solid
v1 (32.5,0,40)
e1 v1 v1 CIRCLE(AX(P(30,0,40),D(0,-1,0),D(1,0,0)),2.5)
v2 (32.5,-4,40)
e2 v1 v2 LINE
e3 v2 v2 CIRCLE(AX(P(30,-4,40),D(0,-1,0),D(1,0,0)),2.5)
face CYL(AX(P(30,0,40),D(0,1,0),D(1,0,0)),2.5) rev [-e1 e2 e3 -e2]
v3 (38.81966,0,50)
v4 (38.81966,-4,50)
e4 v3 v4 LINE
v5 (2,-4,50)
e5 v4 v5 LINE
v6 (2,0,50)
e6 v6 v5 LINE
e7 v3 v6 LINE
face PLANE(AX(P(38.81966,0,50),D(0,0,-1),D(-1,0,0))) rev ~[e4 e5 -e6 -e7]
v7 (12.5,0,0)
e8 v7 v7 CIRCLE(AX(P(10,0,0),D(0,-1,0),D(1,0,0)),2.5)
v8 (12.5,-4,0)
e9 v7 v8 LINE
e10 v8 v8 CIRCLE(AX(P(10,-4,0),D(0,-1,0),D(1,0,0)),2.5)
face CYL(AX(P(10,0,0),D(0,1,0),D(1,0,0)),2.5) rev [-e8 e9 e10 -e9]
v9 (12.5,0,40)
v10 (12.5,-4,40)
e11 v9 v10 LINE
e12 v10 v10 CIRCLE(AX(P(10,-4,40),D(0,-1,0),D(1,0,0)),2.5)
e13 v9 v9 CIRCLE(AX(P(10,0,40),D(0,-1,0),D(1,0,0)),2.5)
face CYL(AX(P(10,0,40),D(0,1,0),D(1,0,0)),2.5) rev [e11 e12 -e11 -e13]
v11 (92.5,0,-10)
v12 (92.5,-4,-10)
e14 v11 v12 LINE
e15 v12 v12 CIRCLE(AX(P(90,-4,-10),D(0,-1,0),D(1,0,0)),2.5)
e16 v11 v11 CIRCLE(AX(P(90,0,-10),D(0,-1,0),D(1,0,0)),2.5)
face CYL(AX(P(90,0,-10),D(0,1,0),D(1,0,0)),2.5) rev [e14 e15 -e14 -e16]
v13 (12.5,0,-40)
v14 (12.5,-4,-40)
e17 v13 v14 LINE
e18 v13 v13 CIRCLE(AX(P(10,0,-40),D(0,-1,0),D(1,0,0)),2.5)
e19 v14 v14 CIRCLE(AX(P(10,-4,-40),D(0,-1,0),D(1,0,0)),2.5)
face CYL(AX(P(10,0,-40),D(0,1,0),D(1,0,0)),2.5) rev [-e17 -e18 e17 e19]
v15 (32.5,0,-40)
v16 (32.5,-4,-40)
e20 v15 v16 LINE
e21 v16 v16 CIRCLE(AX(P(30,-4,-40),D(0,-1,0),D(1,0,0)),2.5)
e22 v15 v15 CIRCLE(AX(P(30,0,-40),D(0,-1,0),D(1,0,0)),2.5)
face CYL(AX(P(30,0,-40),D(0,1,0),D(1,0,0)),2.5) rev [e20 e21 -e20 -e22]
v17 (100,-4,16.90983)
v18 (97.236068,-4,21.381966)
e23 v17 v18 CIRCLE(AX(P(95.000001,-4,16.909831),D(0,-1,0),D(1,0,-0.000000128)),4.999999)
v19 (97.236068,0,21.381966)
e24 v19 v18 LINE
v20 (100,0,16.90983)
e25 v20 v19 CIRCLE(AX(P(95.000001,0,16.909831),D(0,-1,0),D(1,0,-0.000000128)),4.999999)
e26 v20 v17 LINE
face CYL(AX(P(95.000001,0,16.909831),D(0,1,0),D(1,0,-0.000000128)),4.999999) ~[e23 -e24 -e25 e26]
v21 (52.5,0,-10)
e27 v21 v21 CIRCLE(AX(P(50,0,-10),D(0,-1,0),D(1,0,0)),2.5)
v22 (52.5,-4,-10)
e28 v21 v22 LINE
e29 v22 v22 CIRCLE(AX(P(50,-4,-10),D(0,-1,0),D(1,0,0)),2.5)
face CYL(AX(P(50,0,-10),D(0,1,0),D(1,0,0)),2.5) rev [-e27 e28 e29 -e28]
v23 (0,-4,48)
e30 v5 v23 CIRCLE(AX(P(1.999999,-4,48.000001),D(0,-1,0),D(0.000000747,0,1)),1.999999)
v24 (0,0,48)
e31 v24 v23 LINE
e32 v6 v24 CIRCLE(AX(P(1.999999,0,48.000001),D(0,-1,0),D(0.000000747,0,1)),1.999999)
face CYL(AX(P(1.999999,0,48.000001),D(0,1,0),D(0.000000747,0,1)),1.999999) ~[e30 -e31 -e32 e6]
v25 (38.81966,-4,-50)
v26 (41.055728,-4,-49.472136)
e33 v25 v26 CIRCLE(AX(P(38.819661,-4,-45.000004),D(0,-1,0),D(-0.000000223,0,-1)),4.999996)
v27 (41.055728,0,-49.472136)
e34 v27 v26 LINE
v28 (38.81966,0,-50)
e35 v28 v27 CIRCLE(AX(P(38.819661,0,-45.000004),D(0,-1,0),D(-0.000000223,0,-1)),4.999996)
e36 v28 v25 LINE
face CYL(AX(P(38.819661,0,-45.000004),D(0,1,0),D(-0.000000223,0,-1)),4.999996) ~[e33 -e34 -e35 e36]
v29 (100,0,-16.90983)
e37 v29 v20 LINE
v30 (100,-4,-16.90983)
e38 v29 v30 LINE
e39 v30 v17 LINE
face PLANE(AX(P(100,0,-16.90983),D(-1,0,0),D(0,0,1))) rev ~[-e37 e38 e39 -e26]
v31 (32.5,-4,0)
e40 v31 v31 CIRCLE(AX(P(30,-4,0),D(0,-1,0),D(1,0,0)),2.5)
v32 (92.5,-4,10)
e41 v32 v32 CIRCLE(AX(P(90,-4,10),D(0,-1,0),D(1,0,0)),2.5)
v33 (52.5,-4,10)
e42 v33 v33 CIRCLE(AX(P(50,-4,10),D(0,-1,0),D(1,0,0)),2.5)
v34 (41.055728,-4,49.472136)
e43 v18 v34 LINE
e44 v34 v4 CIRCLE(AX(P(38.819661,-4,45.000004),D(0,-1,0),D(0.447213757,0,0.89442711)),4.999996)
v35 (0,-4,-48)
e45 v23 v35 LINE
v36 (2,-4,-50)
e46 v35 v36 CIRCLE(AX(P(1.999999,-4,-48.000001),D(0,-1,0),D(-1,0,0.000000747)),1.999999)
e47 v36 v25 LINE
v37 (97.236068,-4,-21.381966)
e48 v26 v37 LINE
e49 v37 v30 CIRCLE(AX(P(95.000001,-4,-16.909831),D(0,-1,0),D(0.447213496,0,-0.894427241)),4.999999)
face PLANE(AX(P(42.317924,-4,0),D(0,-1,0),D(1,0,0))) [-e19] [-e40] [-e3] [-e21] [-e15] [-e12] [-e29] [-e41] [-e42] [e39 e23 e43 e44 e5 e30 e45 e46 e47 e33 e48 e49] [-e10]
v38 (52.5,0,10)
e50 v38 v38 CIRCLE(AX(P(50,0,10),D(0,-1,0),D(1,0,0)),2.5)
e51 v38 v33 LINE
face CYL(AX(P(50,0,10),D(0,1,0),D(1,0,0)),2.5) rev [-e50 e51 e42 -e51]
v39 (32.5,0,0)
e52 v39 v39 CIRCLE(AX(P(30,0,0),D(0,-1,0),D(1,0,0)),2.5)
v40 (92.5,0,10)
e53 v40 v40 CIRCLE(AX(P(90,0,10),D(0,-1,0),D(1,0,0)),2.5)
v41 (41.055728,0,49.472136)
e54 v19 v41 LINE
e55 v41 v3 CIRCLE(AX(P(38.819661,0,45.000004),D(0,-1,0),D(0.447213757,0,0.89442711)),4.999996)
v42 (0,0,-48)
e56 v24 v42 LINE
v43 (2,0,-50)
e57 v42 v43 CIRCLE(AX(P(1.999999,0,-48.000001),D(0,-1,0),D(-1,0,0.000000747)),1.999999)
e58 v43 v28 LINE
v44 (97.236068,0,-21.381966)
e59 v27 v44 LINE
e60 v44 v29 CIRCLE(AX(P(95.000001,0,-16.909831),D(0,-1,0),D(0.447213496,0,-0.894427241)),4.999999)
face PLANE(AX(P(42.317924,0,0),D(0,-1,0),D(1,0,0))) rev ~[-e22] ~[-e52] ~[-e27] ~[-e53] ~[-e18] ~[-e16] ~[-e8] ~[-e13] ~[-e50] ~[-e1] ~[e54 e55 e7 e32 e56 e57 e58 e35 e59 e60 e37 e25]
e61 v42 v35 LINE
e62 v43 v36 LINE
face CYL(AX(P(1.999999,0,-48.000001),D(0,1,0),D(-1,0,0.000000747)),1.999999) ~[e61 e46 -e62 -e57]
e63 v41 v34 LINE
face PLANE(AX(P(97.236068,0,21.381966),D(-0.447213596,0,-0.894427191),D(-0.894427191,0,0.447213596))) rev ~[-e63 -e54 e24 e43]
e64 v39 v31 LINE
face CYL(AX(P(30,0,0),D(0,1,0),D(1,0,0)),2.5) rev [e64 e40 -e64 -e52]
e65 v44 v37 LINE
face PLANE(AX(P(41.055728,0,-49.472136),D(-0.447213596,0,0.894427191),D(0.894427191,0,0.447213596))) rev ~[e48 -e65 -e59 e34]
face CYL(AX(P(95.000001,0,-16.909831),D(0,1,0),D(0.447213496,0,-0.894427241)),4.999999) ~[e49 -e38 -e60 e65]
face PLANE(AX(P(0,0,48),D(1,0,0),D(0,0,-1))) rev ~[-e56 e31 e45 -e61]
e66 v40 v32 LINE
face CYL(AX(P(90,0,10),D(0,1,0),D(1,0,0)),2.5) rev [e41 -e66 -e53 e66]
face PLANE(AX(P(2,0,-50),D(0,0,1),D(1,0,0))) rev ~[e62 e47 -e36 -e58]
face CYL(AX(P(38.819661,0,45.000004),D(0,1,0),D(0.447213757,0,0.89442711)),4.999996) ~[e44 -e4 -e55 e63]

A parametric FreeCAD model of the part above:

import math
import FreeCAD as App
import Part
import Sketcher
from FreeCAD import Vector
Q = App.Units.Quantity

doc = App.newDocument("Part")
params = doc.addObject("Spreadsheet::Sheet", "Params")
for row, (alias, value) in enumerate([
    ("sketch1_diameter", "5 mm"),
    ("sketch1_radius", "1.999999 mm"),
    ("sketch1_radius2", "4.999999 mm"),
    ("sketch1_height", "96 mm"),
    ("pad1_length", "4 mm"),
], start=1):
    params.set(f"A{row}", alias)
    params.set(f"B{row}", "=" + value)
    params.setAlias(f"B{row}", alias)

body = doc.addObject("PartDesign::Body", "Body")

# Sketch on XZ plane
sketch1 = doc.addObject("Sketcher::SketchObject", "Sketch")
body.addObject(sketch1)
sketch1.AttachmentSupport = (doc.XZ_Plane, [""])
sketch1.MapMode = "FlatFace"
sketch1.addGeometry([
    Part.LineSegment(Vector(0, 48, 0), Vector(0, -48, 0)),  # 0
    Part.ArcOfCircle(Part.Circle(Vector(2, -48, 0), Vector(0, 0, 1), 2), math.radians(180), math.radians(270)),  # 1
    Part.LineSegment(Vector(2, -50, 0), Vector(38.8, -50, 0)),  # 2
    Part.ArcOfCircle(Part.Circle(Vector(38.8, -45, 0), Vector(0, 0, 1), 5), math.radians(-90), math.radians(-63)),  # 3
    Part.LineSegment(Vector(41.1, -49.5, 0), Vector(97.2, -21.4, 0)),  # 4
    Part.ArcOfCircle(Part.Circle(Vector(95, -16.9, 0), Vector(0, 0, 1), 5), math.radians(-63), math.radians(0)),  # 5
    Part.LineSegment(Vector(100, -16.9, 0), Vector(100, 16.9, 0)),  # 6
    Part.ArcOfCircle(Part.Circle(Vector(95, 16.9, 0), Vector(0, 0, 1), 5), math.radians(0), math.radians(63)),  # 7
    Part.LineSegment(Vector(97.2, 21.4, 0), Vector(41.1, 49.5, 0)),  # 8
    Part.ArcOfCircle(Part.Circle(Vector(38.8, 45, 0), Vector(0, 0, 1), 5), math.radians(63), math.radians(90)),  # 9
    Part.LineSegment(Vector(38.8, 50, 0), Vector(2, 50, 0)),  # 10
    Part.ArcOfCircle(Part.Circle(Vector(2, 48, 0), Vector(0, 0, 1), 2), math.radians(90), math.radians(180)),  # 11
    Part.Circle(Vector(10, -40, 0), Vector(0, 0, 1), 2.5),  # 12
    Part.Circle(Vector(30, -40, 0), Vector(0, 0, 1), 2.5),  # 13
    Part.Circle(Vector(50, -10, 0), Vector(0, 0, 1), 2.5),  # 14
    Part.Circle(Vector(90, -10, 0), Vector(0, 0, 1), 2.5),  # 15
    Part.Circle(Vector(10, 0, 0), Vector(0, 0, 1), 2.5),  # 16
    Part.Circle(Vector(30, 0, 0), Vector(0, 0, 1), 2.5),  # 17
    Part.Circle(Vector(10, 40, 0), Vector(0, 0, 1), 2.5),  # 18
    Part.Circle(Vector(30, 40, 0), Vector(0, 0, 1), 2.5),  # 19
    Part.Circle(Vector(50, 10, 0), Vector(0, 0, 1), 2.5),  # 20
    Part.Circle(Vector(90, 10, 0), Vector(0, 0, 1), 2.5),  # 21
], False)
sketch1.addConstraint([
    Sketcher.Constraint("Tangent", 0, 2, 1, 1),
    Sketcher.Constraint("Tangent", 1, 2, 2, 1),
    Sketcher.Constraint("Tangent", 2, 2, 3, 1),
    Sketcher.Constraint("Tangent", 3, 2, 4, 1),
    Sketcher.Constraint("Tangent", 4, 2, 5, 1),
    Sketcher.Constraint("Tangent", 5, 2, 6, 1),
    Sketcher.Constraint("Tangent", 6, 2, 7, 1),
    Sketcher.Constraint("Tangent", 7, 2, 8, 1),
    Sketcher.Constraint("Tangent", 8, 2, 9, 1),
    Sketcher.Constraint("Tangent", 9, 2, 10, 1),
    Sketcher.Constraint("Tangent", 10, 2, 11, 1),
    Sketcher.Constraint("Tangent", 11, 2, 0, 1),
    Sketcher.Constraint("Vertical", 0),
    Sketcher.Constraint("Horizontal", 2),
    Sketcher.Constraint("Vertical", 6),
    Sketcher.Constraint("Horizontal", 10),
    Sketcher.Constraint("Equal", 5, 7),
    Sketcher.Constraint("Equal", 3, 9),
    Sketcher.Constraint("Equal", 1, 11),
    Sketcher.Constraint("Equal", 12, 13),
    Sketcher.Constraint("Equal", 13, 14),
    Sketcher.Constraint("Equal", 14, 15),
    Sketcher.Constraint("Equal", 15, 16),
    Sketcher.Constraint("Equal", 16, 17),
    Sketcher.Constraint("Equal", 17, 18),
    Sketcher.Constraint("Equal", 18, 19),
    Sketcher.Constraint("Equal", 19, 20),
    Sketcher.Constraint("Equal", 20, 21),
    Sketcher.Constraint("Symmetric", 0, 2, 11, 2, -1, 1),
    Sketcher.Constraint("Symmetric", 12, 3, 18, 3, -1),
    Sketcher.Constraint("Symmetric", 13, 3, 19, 3, -1),
    Sketcher.Constraint("Symmetric", 14, 3, 20, 3, -1),
    Sketcher.Constraint("Symmetric", 15, 3, 21, 3, -1),
    Sketcher.Constraint("Symmetric", 4, 2, 7, 2, -1),
    Sketcher.Constraint("PointOnObject", 16, 3, -1),
    Sketcher.Constraint("PointOnObject", 17, 3, -1),
    Sketcher.Constraint("Horizontal", 12, 3, 13, 3),
    Sketcher.Constraint("Horizontal", 14, 3, 15, 3),
    Sketcher.Constraint("Vertical", 12, 3, 16, 3),
    Sketcher.Constraint("Vertical", 13, 3, 17, 3),
    Sketcher.Constraint("Diameter", 12, Q("5 mm")),
    Sketcher.Constraint("Radius", 1, Q("1.999999 mm")),
    Sketcher.Constraint("Radius", 5, Q("4.999999 mm")),
    Sketcher.Constraint("DistanceY", 0, 2, 0, 1, Q("96 mm")),
    Sketcher.Constraint("DistanceX", -1, 1, 5, 3, Q("95.000001 mm")),
    Sketcher.Constraint("DistanceX", -1, 1, 12, 3, Q("10 mm")),
    Sketcher.Constraint("DistanceY", 12, 3, -1, 1, Q("40 mm")),
    Sketcher.Constraint("DistanceX", -1, 1, 13, 3, Q("30 mm")),
    Sketcher.Constraint("DistanceX", -1, 1, 14, 3, Q("50 mm")),
    Sketcher.Constraint("DistanceY", 14, 3, -1, 1, Q("10 mm")),
    Sketcher.Constraint("DistanceX", -1, 1, 15, 3, Q("90 mm")),
    Sketcher.Constraint("Radius", 3, Q("4.999996 mm")),
    Sketcher.Constraint("DistanceX", 2, 1, 2, 2, Q("36.81966 mm")),
    Sketcher.Constraint("DistanceY", 6, 1, 6, 2, Q("33.81966 mm")),
])
sketch1.setExpression("Constraints[40]", "Params.sketch1_diameter")
sketch1.setExpression("Constraints[41]", "Params.sketch1_radius")
sketch1.setExpression("Constraints[42]", "Params.sketch1_radius2")
sketch1.setExpression("Constraints[43]", "Params.sketch1_height")
pad1 = doc.addObject("PartDesign::Pad", "Pad")
body.addObject(pad1)
pad1.Profile = sketch1
pad1.setExpression("Length", "Params.pad1_length")

doc.recompute()
